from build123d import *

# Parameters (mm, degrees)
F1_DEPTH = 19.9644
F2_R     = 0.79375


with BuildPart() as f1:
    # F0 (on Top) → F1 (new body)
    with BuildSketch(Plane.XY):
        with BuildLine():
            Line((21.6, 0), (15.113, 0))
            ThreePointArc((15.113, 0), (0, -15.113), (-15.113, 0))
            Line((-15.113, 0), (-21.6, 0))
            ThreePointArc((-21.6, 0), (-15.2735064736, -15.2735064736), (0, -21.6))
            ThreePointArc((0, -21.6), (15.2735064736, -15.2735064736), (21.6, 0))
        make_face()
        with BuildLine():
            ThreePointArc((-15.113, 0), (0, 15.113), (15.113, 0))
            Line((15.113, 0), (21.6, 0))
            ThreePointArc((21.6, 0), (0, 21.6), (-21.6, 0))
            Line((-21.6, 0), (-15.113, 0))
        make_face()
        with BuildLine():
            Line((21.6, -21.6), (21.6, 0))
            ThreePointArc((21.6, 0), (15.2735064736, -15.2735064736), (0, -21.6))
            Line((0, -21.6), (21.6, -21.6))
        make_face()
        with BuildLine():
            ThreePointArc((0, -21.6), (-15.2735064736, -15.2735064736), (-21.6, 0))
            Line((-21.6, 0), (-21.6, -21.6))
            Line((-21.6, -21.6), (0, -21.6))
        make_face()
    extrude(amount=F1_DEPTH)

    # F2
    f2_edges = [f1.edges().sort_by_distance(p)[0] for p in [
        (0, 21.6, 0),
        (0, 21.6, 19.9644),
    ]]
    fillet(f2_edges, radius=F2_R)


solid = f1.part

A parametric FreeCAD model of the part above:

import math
import FreeCAD as App
import Part
import Sketcher
from FreeCAD import Vector
Q = App.Units.Quantity


def edges_at(feature, points):
    """Names of the edges that pass closest to the given points."""
    edges = feature.Shape.Edges
    near = lambda p: min(range(len(edges)), key=lambda i: edges[i].distToShape(Part.Vertex(*p))[0])
    return sorted({f"Edge{near(p) + 1}" for p in points})

doc = App.newDocument("Part")
body = doc.addObject("PartDesign::Body", "Body")

sketch1 = body.newObject("Sketcher::SketchObject", "Sketch")
sketch1.AttachmentSupport = (doc.getObject("XY_Plane"), [""])
sketch1.MapMode = "FlatFace"
sketch1.addGeometry([
    Part.LineSegment(Vector(21.6, -21.6, 0), Vector(21.6, 0, 0)),
    Part.ArcOfCircle(Part.Circle(Vector(0, 0, 0), Vector(0, 0, 1), 21.6), math.radians(0), math.radians(180)),
    Part.LineSegment(Vector(-21.6, 0, 0), Vector(-21.6, -21.6, 0)),
    Part.LineSegment(Vector(-21.6, -21.6, 0), Vector(21.6, -21.6, 0)),
    Part.Circle(Vector(0, 0, 0), Vector(0, 0, 1), 15.113),
], False)
sketch1.addConstraint([
    Sketcher.Constraint("Tangent", 0, 2, 1, 1),
    Sketcher.Constraint("Tangent", 1, 2, 2, 1),
    Sketcher.Constraint("Coincident", 2, 2, 3, 1),
    Sketcher.Constraint("Coincident", 3, 2, 0, 1),
    Sketcher.Constraint("Vertical", 0),
    Sketcher.Constraint("Vertical", 2),
    Sketcher.Constraint("Horizontal", 3),
    Sketcher.Constraint("Coincident", 1, 3, -1, 1),
    Sketcher.Constraint("Coincident", 4, 3, -1, 1),
    Sketcher.Constraint("Diameter", 4, Q("1.19 in")),
    Sketcher.Constraint("Radius", 1, 21.6),
    Sketcher.Constraint("DistanceY", 0, 1, 0, 2, 21.6),
])
pad1 = body.newObject("PartDesign::Pad", "Pad")
pad1.Profile = sketch1
pad1.Length = Q("0.786 in")
doc.recompute()

fillet = body.newObject("PartDesign::Fillet", "Fillet")
fillet.Base = (pad1, edges_at(pad1, [(0, 21.6, 0), (0, 21.6, 19.964)]))
fillet.Radius = Q("0.03125 in")

doc.recompute()
